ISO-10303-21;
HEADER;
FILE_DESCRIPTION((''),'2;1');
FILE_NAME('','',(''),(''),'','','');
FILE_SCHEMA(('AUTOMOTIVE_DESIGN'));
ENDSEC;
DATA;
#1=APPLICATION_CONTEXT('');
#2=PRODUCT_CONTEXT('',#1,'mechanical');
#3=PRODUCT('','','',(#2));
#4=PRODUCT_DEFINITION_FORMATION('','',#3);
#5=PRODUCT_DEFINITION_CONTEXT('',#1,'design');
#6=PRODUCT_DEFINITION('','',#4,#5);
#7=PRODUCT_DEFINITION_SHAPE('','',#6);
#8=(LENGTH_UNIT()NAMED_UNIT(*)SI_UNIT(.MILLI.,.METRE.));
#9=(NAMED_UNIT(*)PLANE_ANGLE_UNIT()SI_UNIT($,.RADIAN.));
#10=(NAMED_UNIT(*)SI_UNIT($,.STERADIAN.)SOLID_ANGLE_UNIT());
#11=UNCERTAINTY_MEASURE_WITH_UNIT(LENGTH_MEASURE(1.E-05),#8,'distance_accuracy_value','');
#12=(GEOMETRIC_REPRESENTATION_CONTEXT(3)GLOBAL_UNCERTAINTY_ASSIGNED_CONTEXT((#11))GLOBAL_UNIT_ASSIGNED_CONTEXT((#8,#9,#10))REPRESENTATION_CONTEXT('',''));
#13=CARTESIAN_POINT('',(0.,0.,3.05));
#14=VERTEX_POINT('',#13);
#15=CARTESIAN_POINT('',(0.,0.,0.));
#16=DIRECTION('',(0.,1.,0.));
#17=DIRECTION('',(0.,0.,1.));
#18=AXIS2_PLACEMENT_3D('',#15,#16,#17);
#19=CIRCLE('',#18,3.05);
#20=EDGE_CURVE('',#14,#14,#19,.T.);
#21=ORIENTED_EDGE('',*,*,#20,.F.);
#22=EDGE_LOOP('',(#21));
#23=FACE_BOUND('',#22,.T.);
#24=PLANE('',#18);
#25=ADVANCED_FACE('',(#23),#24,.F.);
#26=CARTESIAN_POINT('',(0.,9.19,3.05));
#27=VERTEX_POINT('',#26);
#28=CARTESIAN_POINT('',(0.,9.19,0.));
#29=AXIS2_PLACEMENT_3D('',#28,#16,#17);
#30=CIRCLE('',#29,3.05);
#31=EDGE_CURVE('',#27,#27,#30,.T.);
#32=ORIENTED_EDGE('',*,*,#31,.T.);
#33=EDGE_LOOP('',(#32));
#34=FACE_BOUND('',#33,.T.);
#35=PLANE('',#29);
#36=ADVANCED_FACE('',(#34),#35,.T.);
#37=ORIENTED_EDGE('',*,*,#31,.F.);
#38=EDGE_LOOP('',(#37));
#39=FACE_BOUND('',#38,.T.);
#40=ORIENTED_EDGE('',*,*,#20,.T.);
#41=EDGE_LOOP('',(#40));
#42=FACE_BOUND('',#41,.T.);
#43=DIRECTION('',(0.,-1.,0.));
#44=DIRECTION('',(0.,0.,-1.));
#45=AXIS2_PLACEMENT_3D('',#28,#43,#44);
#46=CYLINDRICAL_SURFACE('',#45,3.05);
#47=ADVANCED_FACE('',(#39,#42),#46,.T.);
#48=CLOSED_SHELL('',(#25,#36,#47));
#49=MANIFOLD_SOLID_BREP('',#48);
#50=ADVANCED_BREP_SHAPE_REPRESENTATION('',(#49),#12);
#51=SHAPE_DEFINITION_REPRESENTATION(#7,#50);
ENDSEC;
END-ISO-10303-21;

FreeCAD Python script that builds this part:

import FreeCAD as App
import Part
import Sketcher

V = App.Vector

doc = App.newDocument("Part")
body = doc.addObject("PartDesign::Body", "Body")

# Sketch on XZ plane
sketch1 = body.newObject("Sketcher::SketchObject", "Sketch")
sketch1.AttachmentSupport = (doc.getObject("XZ_Plane"), [""])
sketch1.MapMode = "FlatFace"
sketch1.addGeometry(Part.Circle(V(0, 0, 0), V(0, 0, 1), 3.05), False)
sketch1.addConstraint(Sketcher.Constraint("Coincident", 0, 3, -1, 1))
sketch1.addConstraint(Sketcher.Constraint("Diameter", 0, 6.1))
pad1 = body.newObject("PartDesign::Pad", "Pad")
pad1.Profile = sketch1
pad1.Length = 9.19
pad1.Reversed = True

doc.recompute()
